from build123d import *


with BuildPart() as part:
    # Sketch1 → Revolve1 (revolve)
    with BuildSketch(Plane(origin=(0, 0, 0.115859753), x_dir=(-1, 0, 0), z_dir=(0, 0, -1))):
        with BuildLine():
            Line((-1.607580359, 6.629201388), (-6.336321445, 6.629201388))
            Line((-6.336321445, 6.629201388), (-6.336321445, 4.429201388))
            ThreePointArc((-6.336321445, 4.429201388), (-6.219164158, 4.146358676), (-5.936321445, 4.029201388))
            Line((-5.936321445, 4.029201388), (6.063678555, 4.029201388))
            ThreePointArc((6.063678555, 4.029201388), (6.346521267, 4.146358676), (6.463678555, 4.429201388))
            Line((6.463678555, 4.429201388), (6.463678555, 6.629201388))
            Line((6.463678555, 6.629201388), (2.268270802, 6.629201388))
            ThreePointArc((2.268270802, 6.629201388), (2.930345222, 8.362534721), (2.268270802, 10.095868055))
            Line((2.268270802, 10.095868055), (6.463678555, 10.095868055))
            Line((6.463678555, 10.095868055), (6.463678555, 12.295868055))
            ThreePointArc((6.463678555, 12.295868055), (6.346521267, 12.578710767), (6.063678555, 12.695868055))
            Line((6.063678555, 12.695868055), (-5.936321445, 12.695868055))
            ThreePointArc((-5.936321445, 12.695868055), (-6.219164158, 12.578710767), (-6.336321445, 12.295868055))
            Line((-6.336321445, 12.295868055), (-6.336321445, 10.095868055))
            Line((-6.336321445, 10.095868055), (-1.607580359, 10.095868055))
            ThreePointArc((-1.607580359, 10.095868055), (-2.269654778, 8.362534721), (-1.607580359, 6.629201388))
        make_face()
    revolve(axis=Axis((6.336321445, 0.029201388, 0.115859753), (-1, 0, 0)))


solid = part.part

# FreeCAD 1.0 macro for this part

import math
import FreeCAD as App
import Part
import Sketcher

V = App.Vector

doc = App.newDocument("Part")
body = doc.addObject("PartDesign::Body", "Body")

sketch1 = doc.addObject("Sketcher::SketchObject", "Sketch")
body.addObject(sketch1)
sketch1.AttachmentSupport = (doc.XY_Plane, [""])
sketch1.MapMode = "FlatFace"
sketch1.AttachmentOffset = App.Placement(V(0, 0, 0.11586), App.Rotation())
sketch1.addGeometry(Part.LineSegment(V(1.60758, 6.629201, 0), V(6.336321, 6.629201, 0)), False)
sketch1.addGeometry(Part.LineSegment(V(6.336321, 6.629201, 0), V(6.336321, 4.429201, 0)), False)
sketch1.addGeometry(Part.ArcOfCircle(Part.Circle(V(5.936321, 4.429201, 0), V(0, 0, 1), 0.4), math.radians(-90), math.radians(0)), False)
sketch1.addGeometry(Part.LineSegment(V(5.936321, 4.029201, 0), V(-6.063679, 4.029201, 0)), False)
sketch1.addGeometry(Part.ArcOfCircle(Part.Circle(V(-6.063679, 4.429201, 0), V(0, 0, 1), 0.4), math.radians(-180), math.radians(-90)), False)
sketch1.addGeometry(Part.LineSegment(V(-6.463679, 4.429201, 0), V(-6.463679, 6.629201, 0)), False)
sketch1.addGeometry(Part.LineSegment(V(-6.463679, 6.629201, 0), V(-2.268271, 6.629201, 0)), False)
sketch1.addGeometry(Part.ArcOfCircle(Part.Circle(V(-0.330345, 8.362535, 0), V(0, 0, 1), 2.6), math.radians(138.189685), math.radians(221.810315)), False)
sketch1.addGeometry(Part.LineSegment(V(-2.268271, 10.095868, 0), V(-6.463679, 10.095868, 0)), False)
sketch1.addGeometry(Part.LineSegment(V(-6.463679, 10.095868, 0), V(-6.463679, 12.295868, 0)), False)
sketch1.addGeometry(Part.ArcOfCircle(Part.Circle(V(-6.063679, 12.295868, 0), V(0, 0, 1), 0.4), math.radians(90), math.radians(180)), False)
sketch1.addGeometry(Part.LineSegment(V(-6.063679, 12.695868, 0), V(5.936321, 12.695868, 0)), False)
sketch1.addGeometry(Part.ArcOfCircle(Part.Circle(V(5.936321, 12.295868, 0), V(0, 0, 1), 0.4), math.radians(0), math.radians(90)), False)
sketch1.addGeometry(Part.LineSegment(V(6.336321, 12.295868, 0), V(6.336321, 10.095868, 0)), False)
sketch1.addGeometry(Part.LineSegment(V(6.336321, 10.095868, 0), V(1.60758, 10.095868, 0)), False)
sketch1.addGeometry(Part.ArcOfCircle(Part.Circle(V(-0.330345, 8.362535, 0), V(0, 0, 1), 2.6), math.radians(-41.810315), math.radians(41.810315)), False)
sketch1.addGeometry(Part.LineSegment(V(6.336321, 0.029201, 0), V(-6.463679, 0.029201, 0)), True)
sketch1.addConstraint(Sketcher.Constraint("Coincident", 0, 2, 1, 1))
sketch1.addConstraint(Sketcher.Constraint("Tangent", 1, 2, 2, 2))
sketch1.addConstraint(Sketcher.Constraint("Tangent", 2, 1, 3, 1))
sketch1.addConstraint(Sketcher.Constraint("Tangent", 3, 2, 4, 2))
sketch1.addConstraint(Sketcher.Constraint("Tangent", 4, 1, 5, 1))
sketch1.addConstraint(Sketcher.Constraint("Coincident", 5, 2, 6, 1))
sketch1.addConstraint(Sketcher.Constraint("Coincident", 6, 2, 7, 2))
sketch1.addConstraint(Sketcher.Constraint("Coincident", 7, 1, 8, 1))
sketch1.addConstraint(Sketcher.Constraint("Coincident", 8, 2, 9, 1))
sketch1.addConstraint(Sketcher.Constraint("Tangent", 9, 2, 10, 2))
sketch1.addConstraint(Sketcher.Constraint("Tangent", 10, 1, 11, 1))
sketch1.addConstraint(Sketcher.Constraint("Tangent", 11, 2, 12, 2))
sketch1.addConstraint(Sketcher.Constraint("Tangent", 12, 1, 13, 1))
sketch1.addConstraint(Sketcher.Constraint("Coincident", 13, 2, 14, 1))
sketch1.addConstraint(Sketcher.Constraint("Coincident", 14, 2, 15, 2))
sketch1.addConstraint(Sketcher.Constraint("Coincident", 15, 1, 0, 1))
sketch1.addConstraint(Sketcher.Constraint("Horizontal", 0))
sketch1.addConstraint(Sketcher.Constraint("Vertical", 1))
sketch1.addConstraint(Sketcher.Constraint("Horizontal", 3))
sketch1.addConstraint(Sketcher.Constraint("Vertical", 5))
sketch1.addConstraint(Sketcher.Constraint("Horizontal", 6))
sketch1.addConstraint(Sketcher.Constraint("Horizontal", 8))
sketch1.addConstraint(Sketcher.Constraint("Vertical", 9))
sketch1.addConstraint(Sketcher.Constraint("Horizontal", 11))
sketch1.addConstraint(Sketcher.Constraint("Vertical", 13))
sketch1.addConstraint(Sketcher.Constraint("Horizontal", 14))
sketch1.addConstraint(Sketcher.Constraint("Horizontal", 16))
sketch1.addConstraint(Sketcher.Constraint("Coincident", 15, 3, 7, 3))
sketch1.addConstraint(Sketcher.Constraint("Equal", 2, 4))
sketch1.addConstraint(Sketcher.Constraint("Equal", 4, 10))
sketch1.addConstraint(Sketcher.Constraint("Equal", 10, 12))
sketch1.addConstraint(Sketcher.Constraint("Equal", 7, 15))
sketch1.addConstraint(Sketcher.Constraint("Horizontal", 0, 2, 5, 2))
sketch1.addConstraint(Sketcher.Constraint("Horizontal", 8, 2, 13, 2))
sketch1.addConstraint(Sketcher.Constraint("Vertical", 4, 3, 10, 3))
sketch1.addConstraint(Sketcher.Constraint("Vertical", 2, 3, 12, 3))
sketch1.addConstraint(Sketcher.Constraint("Vertical", 6, 2, 7, 1))
sketch1.addConstraint(Sketcher.Constraint("Vertical", 13, 2, 16, 1))
sketch1.addConstraint(Sketcher.Constraint("Vertical", 9, 2, 16, 2))
sketch1.addConstraint(Sketcher.Constraint("Equal", 5, 9))
sketch1.addConstraint(Sketcher.Constraint("Radius", 2, 0.4))
sketch1.addConstraint(Sketcher.Constraint("Radius", 7, 2.6))
sketch1.addConstraint(Sketcher.Constraint("DistanceX", 3, 2, 3, 1, 12.0))
sketch1.addConstraint(Sketcher.Constraint("DistanceY", 1, 2, 1, 1, 2.2))
sketch1.addConstraint(Sketcher.Constraint("DistanceY", 16, 1, 2, 1, 4.0))
sketch1.addConstraint(Sketcher.Constraint("DistanceX", 0, 1, 0, 2, 4.728741))
sketch1.addConstraint(Sketcher.Constraint("DistanceY", -1, 1, 2, 3, 4.429201))
sketch1.addConstraint(Sketcher.Constraint("DistanceX", 6, 1, 6, 2, 4.195408))
sketch1.addConstraint(Sketcher.Constraint("DistanceX", -1, 1, 2, 3, 5.936321))
revolution = doc.addObject("PartDesign::Revolution", "Revolution")
body.addObject(revolution)
revolution.Profile = sketch1
revolution.ReferenceAxis = (sketch1, ["Axis0"])
revolution.Angle = 360

doc.recompute()
